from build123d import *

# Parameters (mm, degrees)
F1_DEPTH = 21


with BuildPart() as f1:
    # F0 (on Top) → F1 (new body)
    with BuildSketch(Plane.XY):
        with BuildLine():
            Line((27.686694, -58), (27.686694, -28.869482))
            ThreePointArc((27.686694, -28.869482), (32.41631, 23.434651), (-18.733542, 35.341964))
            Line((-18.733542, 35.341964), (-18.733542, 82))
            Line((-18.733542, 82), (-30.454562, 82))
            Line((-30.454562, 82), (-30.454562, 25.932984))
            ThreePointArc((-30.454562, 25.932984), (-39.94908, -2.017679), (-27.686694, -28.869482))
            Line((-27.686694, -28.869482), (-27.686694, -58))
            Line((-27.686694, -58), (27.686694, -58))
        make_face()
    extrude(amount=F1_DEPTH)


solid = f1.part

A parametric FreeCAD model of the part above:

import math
import FreeCAD as App
import Part
import Sketcher

V = App.Vector
Q = App.Units.Quantity

doc = App.newDocument("Part")
params = doc.addObject("Spreadsheet::Sheet", "Params")
for row, (alias, value) in enumerate([
    ("sketch1_radius", "40 mm"),
    ("pad1_length", "21 mm"),
], start=1):
    params.set(f"A{row}", alias)
    params.set(f"B{row}", "=" + value)
    params.setAlias(f"B{row}", alias)

body = doc.addObject("PartDesign::Body", "Body")

# Sketch on XY plane
sketch1 = doc.addObject("Sketcher::SketchObject", "Sketch")
body.addObject(sketch1)
sketch1.AttachmentSupport = (doc.XY_Plane, [""])
sketch1.MapMode = "FlatFace"
sketch1.addGeometry(Part.LineSegment(V(27.686694, -58, 0), V(27.686694, -28.869482, 0)), False)
sketch1.addGeometry(Part.ArcOfCircle(Part.Circle(V(0, 0, 0), V(0, 0, 1), 40), math.radians(-46.198081), math.radians(117.926502)), False)
sketch1.addGeometry(Part.LineSegment(V(-18.733542, 35.341964, 0), V(-18.733542, 82, 0)), False)
sketch1.addGeometry(Part.LineSegment(V(-18.733542, 82, 0), V(-30.454562, 82, 0)), False)
sketch1.addGeometry(Part.LineSegment(V(-30.454562, 82, 0), V(-30.454562, 25.932984, 0)), False)
sketch1.addGeometry(Part.ArcOfCircle(Part.Circle(V(0, 0, 0), V(0, 0, 1), 40), math.radians(139.584597), math.radians(226.198081)), False)
sketch1.addGeometry(Part.LineSegment(V(-27.686694, -28.869482, 0), V(-27.686694, -58, 0)), False)
sketch1.addGeometry(Part.LineSegment(V(-27.686694, -58, 0), V(27.686694, -58, 0)), False)
sketch1.addConstraint(Sketcher.Constraint("Coincident", 0, 2, 1, 1))
sketch1.addConstraint(Sketcher.Constraint("Coincident", 1, 2, 2, 1))
sketch1.addConstraint(Sketcher.Constraint("Coincident", 2, 2, 3, 1))
sketch1.addConstraint(Sketcher.Constraint("Coincident", 3, 2, 4, 1))
sketch1.addConstraint(Sketcher.Constraint("Coincident", 4, 2, 5, 1))
sketch1.addConstraint(Sketcher.Constraint("Coincident", 5, 2, 6, 1))
sketch1.addConstraint(Sketcher.Constraint("Coincident", 6, 2, 7, 1))
sketch1.addConstraint(Sketcher.Constraint("Coincident", 7, 2, 0, 1))
sketch1.addConstraint(Sketcher.Constraint("Vertical", 0))
sketch1.addConstraint(Sketcher.Constraint("Vertical", 2))
sketch1.addConstraint(Sketcher.Constraint("Horizontal", 3))
sketch1.addConstraint(Sketcher.Constraint("Vertical", 4))
sketch1.addConstraint(Sketcher.Constraint("Vertical", 6))
sketch1.addConstraint(Sketcher.Constraint("Horizontal", 7))
sketch1.addConstraint(Sketcher.Constraint("Coincident", 1, 3, -1, 1))
sketch1.addConstraint(Sketcher.Constraint("Coincident", 5, 3, -1, 1))
sketch1.addConstraint(Sketcher.Constraint("Equal", 1, 5))
sketch1.addConstraint(Sketcher.Constraint("Horizontal", 0, 2, 5, 2))
sketch1.addConstraint(Sketcher.Constraint("Radius", 1, Q("40 mm")))
sketch1.addConstraint(Sketcher.Constraint("DistanceY", -1, 1, 2, 2, Q("82 mm")))
sketch1.addConstraint(Sketcher.Constraint("DistanceY", 6, 2, -1, 1, Q("58 mm")))
sketch1.addConstraint(Sketcher.Constraint("DistanceX", 3, 2, 3, 1, Q("11.72102 mm")))
sketch1.addConstraint(Sketcher.Constraint("DistanceX", 7, 1, 7, 2, Q("55.373388 mm")))
sketch1.addConstraint(Sketcher.Constraint("DistanceY", 2, 1, 2, 2, Q("46.658036 mm")))
sketch1.setExpression("Constraints[18]", "Params.sketch1_radius")
pad1 = doc.addObject("PartDesign::Pad", "Pad")
body.addObject(pad1)
pad1.Profile = sketch1
pad1.setExpression("Length", "Params.pad1_length")

doc.recompute()
